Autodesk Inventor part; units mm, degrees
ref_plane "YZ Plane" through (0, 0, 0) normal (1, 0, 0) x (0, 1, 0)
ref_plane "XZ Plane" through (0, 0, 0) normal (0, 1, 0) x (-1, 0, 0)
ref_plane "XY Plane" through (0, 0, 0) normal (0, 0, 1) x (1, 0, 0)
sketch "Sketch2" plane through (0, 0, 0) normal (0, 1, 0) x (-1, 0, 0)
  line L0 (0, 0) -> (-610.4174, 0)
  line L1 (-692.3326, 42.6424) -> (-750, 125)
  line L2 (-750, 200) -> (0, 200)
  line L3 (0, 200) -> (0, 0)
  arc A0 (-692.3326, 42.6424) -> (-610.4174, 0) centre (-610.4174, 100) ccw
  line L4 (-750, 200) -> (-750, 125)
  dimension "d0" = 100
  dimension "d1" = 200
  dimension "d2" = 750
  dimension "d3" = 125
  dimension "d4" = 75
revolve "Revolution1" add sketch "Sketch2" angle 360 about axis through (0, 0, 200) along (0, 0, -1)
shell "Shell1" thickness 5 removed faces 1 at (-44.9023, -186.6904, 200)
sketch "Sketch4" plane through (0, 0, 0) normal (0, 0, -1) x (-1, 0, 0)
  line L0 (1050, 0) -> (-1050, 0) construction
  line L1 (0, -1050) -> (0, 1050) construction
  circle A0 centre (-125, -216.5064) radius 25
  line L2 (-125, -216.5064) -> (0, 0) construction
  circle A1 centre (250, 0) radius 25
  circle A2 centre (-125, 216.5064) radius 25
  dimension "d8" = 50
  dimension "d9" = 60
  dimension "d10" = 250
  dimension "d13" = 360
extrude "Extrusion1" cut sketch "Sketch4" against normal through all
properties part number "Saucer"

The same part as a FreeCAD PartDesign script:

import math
import FreeCAD as App
import Part
import Sketcher
from FreeCAD import Vector
Q = App.Units.Quantity


def faces_at(feature, points):
    """Names of the faces that lie closest to the given points."""
    faces = feature.Shape.Faces
    near = lambda p: min(range(len(faces)), key=lambda i: faces[i].distToShape(Part.Vertex(*p))[0])
    return sorted({f"Face{near(p) + 1}" for p in points})

doc = App.newDocument("Part")
body = doc.addObject("PartDesign::Body", "Body")

sketch1 = body.newObject("Sketcher::SketchObject", "Sketch")
sketch1.AttachmentSupport = (doc.getObject("XZ_Plane"), [""])
sketch1.MapMode = "FlatFace"
sketch1.addGeometry([
    Part.LineSegment(Vector(610, 0, 0), Vector(0, 0, 0)),
    Part.LineSegment(Vector(0, 0, 0), Vector(0, 200, 0)),
    Part.LineSegment(Vector(0, 200, 0), Vector(750, 200, 0)),
    Part.LineSegment(Vector(750, 200, 0), Vector(750, 125, 0)),
    Part.LineSegment(Vector(750, 125, 0), Vector(692, 43, 0)),
    Part.ArcOfCircle(Part.Circle(Vector(610, 100, 0), Vector(0, 0, 1), 100), math.radians(-90), math.radians(-35)),
], False)
sketch1.addConstraint([
    Sketcher.Constraint("Coincident", 0, 2, 1, 1),
    Sketcher.Constraint("Coincident", 1, 2, 2, 1),
    Sketcher.Constraint("Coincident", 2, 2, 3, 1),
    Sketcher.Constraint("Coincident", 3, 2, 4, 1),
    Sketcher.Constraint("Tangent", 4, 2, 5, 2),
    Sketcher.Constraint("Tangent", 5, 1, 0, 1),
    Sketcher.Constraint("Horizontal", 0),
    Sketcher.Constraint("Vertical", 1),
    Sketcher.Constraint("Horizontal", 2),
    Sketcher.Constraint("Vertical", 3),
    Sketcher.Constraint("Coincident", 0, 2, -1, 1),
    Sketcher.Constraint("Radius", 5, 100.0),
    Sketcher.Constraint("DistanceX", 2, 1, 2, 2, 750.0),
    Sketcher.Constraint("DistanceY", 1, 1, 1, 2, 200.0),
    Sketcher.Constraint("DistanceY", 3, 2, 3, 1, 75.0),
    Sketcher.Constraint("Angle", 4, Q("-125 deg")),
])
revolution = body.newObject("PartDesign::Revolution", "Revolution")
revolution.Profile = sketch1
revolution.ReferenceAxis = (sketch1, ["V_Axis"])
revolution.Angle = 360
doc.recompute()

thickness = body.newObject("PartDesign::Thickness", "Thickness")
thickness.Base = (revolution, faces_at(revolution, [(-44.902, -186.69, 200)]))
thickness.Value = 5
thickness.Reversed = True
thickness.Join = "Intersection"

sketch2 = body.newObject("Sketcher::SketchObject", "Sketch001")
sketch2.AttachmentSupport = (doc.getObject("XY_Plane"), [""])
sketch2.MapMode = "FlatFace"
sketch2.addGeometry([
    Part.Circle(Vector(125, -217, 0), Vector(0, 0, 1), 25),
    Part.Circle(Vector(-250, 0, 0), Vector(0, 0, 1), 25),
    Part.Circle(Vector(125, 217, 0), Vector(0, 0, 1), 25),
], False)
sketch2.addConstraint([
    Sketcher.Constraint("Equal", 0, 1),
    Sketcher.Constraint("Equal", 1, 2),
    Sketcher.Constraint("Symmetric", 0, 3, 2, 3, -1),
    Sketcher.Constraint("PointOnObject", 1, 3, -1),
    Sketcher.Constraint("Diameter", 0, 50.0),
    Sketcher.Constraint("DistanceX", 1, 3, -1, 1, 250.0),
    Sketcher.Constraint("DistanceX", -1, 1, 0, 3, 125.0),
    Sketcher.Constraint("DistanceY", 0, 3, -1, 1, 216.5064),
])
pocket1 = body.newObject("PartDesign::Pocket", "Pocket")
pocket1.Profile = sketch2
pocket1.Type = "ThroughAll"
pocket1.Reversed = True

doc.recompute()
